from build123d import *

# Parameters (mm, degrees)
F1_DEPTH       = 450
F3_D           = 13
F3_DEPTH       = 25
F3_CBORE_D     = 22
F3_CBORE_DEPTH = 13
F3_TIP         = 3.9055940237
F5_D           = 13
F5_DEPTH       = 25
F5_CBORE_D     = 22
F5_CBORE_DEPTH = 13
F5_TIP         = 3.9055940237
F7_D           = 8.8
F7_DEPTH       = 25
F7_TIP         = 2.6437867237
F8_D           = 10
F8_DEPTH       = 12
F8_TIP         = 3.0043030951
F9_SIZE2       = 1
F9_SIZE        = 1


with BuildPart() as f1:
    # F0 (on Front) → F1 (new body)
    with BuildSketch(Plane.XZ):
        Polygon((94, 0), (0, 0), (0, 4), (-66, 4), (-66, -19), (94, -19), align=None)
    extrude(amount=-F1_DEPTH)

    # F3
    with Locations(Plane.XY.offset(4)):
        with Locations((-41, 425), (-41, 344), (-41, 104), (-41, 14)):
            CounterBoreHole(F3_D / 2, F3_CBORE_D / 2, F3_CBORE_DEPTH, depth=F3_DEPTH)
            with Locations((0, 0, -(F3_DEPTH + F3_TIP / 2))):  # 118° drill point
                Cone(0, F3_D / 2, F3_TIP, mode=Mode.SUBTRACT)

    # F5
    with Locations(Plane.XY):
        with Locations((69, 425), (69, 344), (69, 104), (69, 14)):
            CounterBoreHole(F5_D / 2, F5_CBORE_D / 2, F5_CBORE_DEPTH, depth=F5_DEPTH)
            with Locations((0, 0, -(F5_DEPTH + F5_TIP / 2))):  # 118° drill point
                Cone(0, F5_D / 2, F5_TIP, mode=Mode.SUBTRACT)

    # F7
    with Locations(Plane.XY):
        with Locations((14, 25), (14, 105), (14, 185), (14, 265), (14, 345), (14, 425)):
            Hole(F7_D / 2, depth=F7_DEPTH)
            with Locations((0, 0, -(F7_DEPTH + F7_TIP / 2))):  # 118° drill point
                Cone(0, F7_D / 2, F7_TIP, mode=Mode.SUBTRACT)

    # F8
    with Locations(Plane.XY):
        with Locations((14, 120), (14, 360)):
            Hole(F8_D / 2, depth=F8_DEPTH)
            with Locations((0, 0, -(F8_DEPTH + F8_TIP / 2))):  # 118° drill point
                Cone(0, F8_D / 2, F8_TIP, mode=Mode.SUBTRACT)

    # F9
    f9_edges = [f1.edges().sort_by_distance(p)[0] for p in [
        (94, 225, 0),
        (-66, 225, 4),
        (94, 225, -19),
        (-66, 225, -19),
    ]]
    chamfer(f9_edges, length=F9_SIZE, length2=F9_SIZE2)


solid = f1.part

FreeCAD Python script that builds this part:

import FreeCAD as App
import Part
import Sketcher
from FreeCAD import Vector


def edges_at(feature, points):
    """Names of the edges that pass closest to the given points."""
    edges = feature.Shape.Edges
    near = lambda p: min(range(len(edges)), key=lambda i: edges[i].distToShape(Part.Vertex(*p))[0])
    return sorted({f"Edge{near(p) + 1}" for p in points})


def add_polygon(sketch, points):
    """Adds a closed chain of lines whose ends are joined by coincident constraints."""
    first, n = sketch.GeometryCount, len(points)
    for a, b in zip(points, points[1:] + points[:1]):
        sketch.addGeometry(Part.LineSegment(App.Vector(*a, 0), App.Vector(*b, 0)), False)
    for i in range(n):
        sketch.addConstraint(Sketcher.Constraint("Coincident", first + i, 2, first + (i + 1) % n, 1))

doc = App.newDocument("Part")
body = doc.addObject("PartDesign::Body", "Body")

# Sketch on XZ plane
sketch1 = doc.addObject("Sketcher::SketchObject", "Sketch")
body.addObject(sketch1)
sketch1.AttachmentSupport = (doc.XZ_Plane, [""])
sketch1.MapMode = "FlatFace"
add_polygon(sketch1, [(94, 0), (0, 0), (0, 4), (-66, 4), (-66, -19), (94, -19)])  # lines 0-5
sketch1.addConstraint([
    Sketcher.Constraint("Horizontal", 0),
    Sketcher.Constraint("Vertical", 1),
    Sketcher.Constraint("Horizontal", 2),
    Sketcher.Constraint("Vertical", 3),
    Sketcher.Constraint("Horizontal", 4),
    Sketcher.Constraint("Vertical", 5),
    Sketcher.Constraint("Coincident", 0, 2, -1, 1),
    Sketcher.Constraint("DistanceX", 0, 2, 0, 1, 94.0),
    Sketcher.Constraint("DistanceX", 2, 2, 2, 1, 66.0),
    Sketcher.Constraint("DistanceY", 1, 1, 1, 2, 4.0),
    Sketcher.Constraint("DistanceY", 3, 2, 3, 1, 23.0),
])
pad1 = doc.addObject("PartDesign::Pad", "Pad")
body.addObject(pad1)
pad1.Profile = sketch1
pad1.Length = 450
pad1.Reversed = True

# Sketch on XY plane
sketch2 = doc.addObject("Sketcher::SketchObject", "Sketch001")
body.addObject(sketch2)
sketch2.AttachmentSupport = (doc.XY_Plane, [""])
sketch2.MapMode = "FlatFace"
sketch2.AttachmentOffset = App.Placement(Vector(0, 0, 4), App.Rotation())
sketch2.addGeometry([
    Part.Circle(Vector(-41, 425, 0), Vector(0, 0, 1), 6.5),
    Part.Circle(Vector(-41, 344, 0), Vector(0, 0, 1), 6.5),
    Part.Circle(Vector(-41, 104, 0), Vector(0, 0, 1), 6.5),
    Part.Circle(Vector(-41, 14, 0), Vector(0, 0, 1), 6.5),
], False)
sketch2.addConstraint([
    Sketcher.Constraint("Equal", 0, 1),
    Sketcher.Constraint("Equal", 1, 2),
    Sketcher.Constraint("Equal", 2, 3),
    Sketcher.Constraint("Vertical", 0, 3, 1, 3),
    Sketcher.Constraint("Vertical", 1, 3, 2, 3),
    Sketcher.Constraint("Vertical", 2, 3, 3, 3),
    Sketcher.Constraint("Diameter", 0, 13.0),
    Sketcher.Constraint("DistanceX", 0, 3, -1, 1, 41.0),
    Sketcher.Constraint("DistanceY", -1, 1, 0, 3, 425.0),
    Sketcher.Constraint("DistanceY", -1, 1, 1, 3, 344.0),
    Sketcher.Constraint("DistanceY", -1, 1, 2, 3, 104.0),
    Sketcher.Constraint("DistanceY", -1, 1, 3, 3, 14.0),
])
doc.recompute()
hole = doc.addObject("PartDesign::Hole", "Hole")
body.addObject(hole)
hole.Profile = sketch2
hole.ThreadType = "None"
hole.Diameter = 13
hole.DepthType = "Dimension"
hole.Depth = 25
hole.DrillPoint = "Angled"
hole.DrillPointAngle = 118
hole.HoleCutType = "Counterbore"
hole.HoleCutDiameter = 22
hole.HoleCutDepth = 13

# Sketch on XY plane
sketch3 = doc.addObject("Sketcher::SketchObject", "Sketch002")
body.addObject(sketch3)
sketch3.AttachmentSupport = (doc.XY_Plane, [""])
sketch3.MapMode = "FlatFace"
sketch3.addGeometry([
    Part.Circle(Vector(69, 425, 0), Vector(0, 0, 1), 6.5),
    Part.Circle(Vector(69, 344, 0), Vector(0, 0, 1), 6.5),
    Part.Circle(Vector(69, 104, 0), Vector(0, 0, 1), 6.5),
    Part.Circle(Vector(69, 14, 0), Vector(0, 0, 1), 6.5),
], False)
sketch3.addConstraint([
    Sketcher.Constraint("Equal", 0, 1),
    Sketcher.Constraint("Equal", 1, 2),
    Sketcher.Constraint("Equal", 2, 3),
    Sketcher.Constraint("Vertical", 0, 3, 1, 3),
    Sketcher.Constraint("Vertical", 1, 3, 2, 3),
    Sketcher.Constraint("Vertical", 2, 3, 3, 3),
    Sketcher.Constraint("Diameter", 0, 13.0),
    Sketcher.Constraint("DistanceX", -1, 1, 0, 3, 69.0),
    Sketcher.Constraint("DistanceY", -1, 1, 0, 3, 425.0),
    Sketcher.Constraint("DistanceY", -1, 1, 1, 3, 344.0),
    Sketcher.Constraint("DistanceY", -1, 1, 2, 3, 104.0),
    Sketcher.Constraint("DistanceY", -1, 1, 3, 3, 14.0),
])
doc.recompute()
hole2 = doc.addObject("PartDesign::Hole", "Hole001")
body.addObject(hole2)
hole2.Profile = sketch3
hole2.ThreadType = "None"
hole2.Diameter = 13
hole2.DepthType = "Dimension"
hole2.Depth = 25
hole2.DrillPoint = "Angled"
hole2.DrillPointAngle = 118
hole2.HoleCutType = "Counterbore"
hole2.HoleCutDiameter = 22
hole2.HoleCutDepth = 13

# Sketch on XY plane
sketch4 = doc.addObject("Sketcher::SketchObject", "Sketch003")
body.addObject(sketch4)
sketch4.AttachmentSupport = (doc.XY_Plane, [""])
sketch4.MapMode = "FlatFace"
sketch4.addGeometry([
    Part.Circle(Vector(14, 25, 0), Vector(0, 0, 1), 4.4),  # 0
    Part.Circle(Vector(14, 105, 0), Vector(0, 0, 1), 4.4),  # 1
    Part.Circle(Vector(14, 185, 0), Vector(0, 0, 1), 4.4),  # 2
    Part.Circle(Vector(14, 265, 0), Vector(0, 0, 1), 4.4),  # 3
    Part.Circle(Vector(14, 345, 0), Vector(0, 0, 1), 4.4),  # 4
    Part.Circle(Vector(14, 425, 0), Vector(0, 0, 1), 4.4),  # 5
], False)
sketch4.addConstraint([
    Sketcher.Constraint("Equal", 0, 1),
    Sketcher.Constraint("Equal", 1, 2),
    Sketcher.Constraint("Equal", 2, 3),
    Sketcher.Constraint("Equal", 3, 4),
    Sketcher.Constraint("Equal", 4, 5),
    Sketcher.Constraint("Vertical", 0, 3, 1, 3),
    Sketcher.Constraint("Vertical", 1, 3, 2, 3),
    Sketcher.Constraint("Vertical", 2, 3, 3, 3),
    Sketcher.Constraint("Vertical", 3, 3, 4, 3),
    Sketcher.Constraint("Vertical", 4, 3, 5, 3),
    Sketcher.Constraint("Diameter", 0, 8.8),
    Sketcher.Constraint("DistanceX", -1, 1, 0, 3, 14.0),
    Sketcher.Constraint("DistanceY", -1, 1, 0, 3, 25.0),
    Sketcher.Constraint("DistanceY", -1, 1, 1, 3, 105.0),
    Sketcher.Constraint("DistanceY", -1, 1, 2, 3, 185.0),
    Sketcher.Constraint("DistanceY", -1, 1, 3, 3, 265.0),
    Sketcher.Constraint("DistanceY", -1, 1, 4, 3, 345.0),
    Sketcher.Constraint("DistanceY", -1, 1, 5, 3, 425.0),
])
doc.recompute()
hole3 = doc.addObject("PartDesign::Hole", "Hole002")
body.addObject(hole3)
hole3.Profile = sketch4
hole3.ThreadType = "None"
hole3.Diameter = 8.8
hole3.DepthType = "Dimension"
hole3.Depth = 25
hole3.DrillPoint = "Angled"
hole3.DrillPointAngle = 118

# Sketch on XY plane
sketch5 = doc.addObject("Sketcher::SketchObject", "Sketch004")
body.addObject(sketch5)
sketch5.AttachmentSupport = (doc.XY_Plane, [""])
sketch5.MapMode = "FlatFace"
sketch5.addGeometry([
    Part.Circle(Vector(14, 120, 0), Vector(0, 0, 1), 5),
    Part.Circle(Vector(14, 360, 0), Vector(0, 0, 1), 5),
], False)
sketch5.addConstraint([
    Sketcher.Constraint("Equal", 0, 1),
    Sketcher.Constraint("Vertical", 0, 3, 1, 3),
    Sketcher.Constraint("Diameter", 0, 10.0),
    Sketcher.Constraint("DistanceX", -1, 1, 0, 3, 14.0),
    Sketcher.Constraint("DistanceY", -1, 1, 0, 3, 120.0),
    Sketcher.Constraint("DistanceY", -1, 1, 1, 3, 360.0),
])
doc.recompute()
hole4 = doc.addObject("PartDesign::Hole", "Hole003")
body.addObject(hole4)
hole4.Profile = sketch5
hole4.ThreadType = "None"
hole4.Diameter = 10
hole4.DepthType = "Dimension"
hole4.Depth = 12
hole4.DrillPoint = "Angled"
hole4.DrillPointAngle = 118
doc.recompute()

chamfer = doc.addObject("PartDesign::Chamfer", "Chamfer")
body.addObject(chamfer)
chamfer.Base = (hole4, edges_at(hole4, [
    (94, 225, 0),
    (-66, 225, 4),
    (94, 225, -19),
    (-66, 225, -19),
]))
chamfer.ChamferType = "Two distances"
chamfer.Size = 1
chamfer.Size2 = 1

doc.recompute()
